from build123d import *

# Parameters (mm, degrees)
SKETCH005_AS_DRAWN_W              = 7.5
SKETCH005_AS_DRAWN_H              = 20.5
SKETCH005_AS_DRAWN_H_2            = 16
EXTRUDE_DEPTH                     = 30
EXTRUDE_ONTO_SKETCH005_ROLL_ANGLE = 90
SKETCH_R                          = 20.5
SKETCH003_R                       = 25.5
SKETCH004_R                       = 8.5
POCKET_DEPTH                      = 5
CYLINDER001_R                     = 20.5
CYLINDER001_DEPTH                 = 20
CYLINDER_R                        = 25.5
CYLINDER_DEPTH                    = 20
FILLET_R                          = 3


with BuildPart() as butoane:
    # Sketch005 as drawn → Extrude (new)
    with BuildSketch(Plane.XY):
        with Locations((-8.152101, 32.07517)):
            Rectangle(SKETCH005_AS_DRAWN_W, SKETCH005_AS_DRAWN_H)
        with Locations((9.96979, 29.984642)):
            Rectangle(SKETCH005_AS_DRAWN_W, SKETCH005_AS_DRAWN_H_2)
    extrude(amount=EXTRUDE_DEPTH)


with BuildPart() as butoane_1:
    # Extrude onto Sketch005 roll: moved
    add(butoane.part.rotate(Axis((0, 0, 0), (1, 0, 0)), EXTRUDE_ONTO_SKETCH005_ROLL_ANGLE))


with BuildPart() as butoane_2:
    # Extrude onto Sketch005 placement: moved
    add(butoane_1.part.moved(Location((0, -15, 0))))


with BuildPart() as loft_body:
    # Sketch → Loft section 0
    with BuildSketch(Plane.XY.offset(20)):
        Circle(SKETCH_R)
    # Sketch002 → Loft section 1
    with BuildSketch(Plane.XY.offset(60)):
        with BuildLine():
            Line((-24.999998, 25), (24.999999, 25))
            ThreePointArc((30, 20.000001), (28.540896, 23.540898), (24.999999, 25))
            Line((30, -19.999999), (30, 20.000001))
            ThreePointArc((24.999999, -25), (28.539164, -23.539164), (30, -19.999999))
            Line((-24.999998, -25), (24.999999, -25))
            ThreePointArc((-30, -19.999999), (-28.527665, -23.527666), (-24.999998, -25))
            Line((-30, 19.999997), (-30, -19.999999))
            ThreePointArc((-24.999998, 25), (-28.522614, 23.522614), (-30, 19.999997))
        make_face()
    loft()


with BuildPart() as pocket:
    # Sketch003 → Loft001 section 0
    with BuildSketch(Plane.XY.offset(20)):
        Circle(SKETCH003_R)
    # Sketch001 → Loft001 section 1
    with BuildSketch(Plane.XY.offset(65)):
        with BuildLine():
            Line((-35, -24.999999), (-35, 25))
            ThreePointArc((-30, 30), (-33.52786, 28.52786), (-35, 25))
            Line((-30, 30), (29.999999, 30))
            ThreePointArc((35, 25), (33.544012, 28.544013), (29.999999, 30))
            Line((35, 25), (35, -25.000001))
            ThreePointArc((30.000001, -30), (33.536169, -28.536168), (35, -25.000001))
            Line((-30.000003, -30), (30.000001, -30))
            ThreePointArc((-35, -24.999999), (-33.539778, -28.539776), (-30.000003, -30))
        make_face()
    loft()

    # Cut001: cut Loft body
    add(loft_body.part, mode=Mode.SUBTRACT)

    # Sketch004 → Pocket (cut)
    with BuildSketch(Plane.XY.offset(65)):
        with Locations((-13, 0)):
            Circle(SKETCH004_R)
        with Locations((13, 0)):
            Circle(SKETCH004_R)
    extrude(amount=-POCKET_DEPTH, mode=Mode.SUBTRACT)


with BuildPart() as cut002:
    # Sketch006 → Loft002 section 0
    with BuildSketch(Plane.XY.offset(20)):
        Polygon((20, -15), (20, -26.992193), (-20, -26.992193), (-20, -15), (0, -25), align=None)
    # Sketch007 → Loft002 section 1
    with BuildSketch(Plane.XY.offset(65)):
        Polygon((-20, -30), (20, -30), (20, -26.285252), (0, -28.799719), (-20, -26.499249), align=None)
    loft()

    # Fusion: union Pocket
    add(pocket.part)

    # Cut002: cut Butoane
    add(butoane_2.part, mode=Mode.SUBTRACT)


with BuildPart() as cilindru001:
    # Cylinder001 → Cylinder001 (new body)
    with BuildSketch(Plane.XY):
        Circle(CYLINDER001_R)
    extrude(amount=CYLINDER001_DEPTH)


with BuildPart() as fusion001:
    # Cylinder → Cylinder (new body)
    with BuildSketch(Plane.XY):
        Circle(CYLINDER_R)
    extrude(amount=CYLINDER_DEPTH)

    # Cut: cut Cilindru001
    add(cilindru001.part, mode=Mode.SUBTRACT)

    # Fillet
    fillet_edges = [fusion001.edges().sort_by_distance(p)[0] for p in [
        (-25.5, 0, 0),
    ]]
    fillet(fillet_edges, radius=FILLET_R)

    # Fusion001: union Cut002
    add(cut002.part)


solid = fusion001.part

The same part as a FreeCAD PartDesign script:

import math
import FreeCAD as App
import Part
import Sketcher


def edges_at(feature, points):
    """Names of the edges that pass closest to the given points."""
    edges = feature.Shape.Edges
    near = lambda p: min(range(len(edges)), key=lambda i: edges[i].distToShape(Part.Vertex(*p))[0])
    return sorted({f"Edge{near(p) + 1}" for p in points})

doc = App.newDocument("Part")
params = doc.addObject("Spreadsheet::Sheet", "Params")
for row, (alias, value) in enumerate([
    ("sketch1_height", "16 mm"),
    ("sketch1_width", "7.5 mm"),
    ("sketch1_height2", "20.5 mm"),
    ("pad1_length", "30 mm"),
    ("sketch2_diameter", "41 mm"),
    ("sketch3_height", "40 mm"),
    ("sketch4_diameter", "51 mm"),
    ("sketch5_width", "59.999999 mm"),
    ("sketch5_height", "49.999999 mm"),
    ("sketch6_diameter", "17 mm"),
    ("pocket1_length", "5 mm"),
    ("sketch7_width", "40 mm"),
    ("sketch8_width", "40 mm"),
    ("sketch9_diameter", "41 mm"),
    ("pad2_length", "20 mm"),
    ("sketch10_diameter", "51 mm"),
    ("pad3_length", "20 mm"),
    ("fillet_radius", "3 mm"),
], start=1):
    params.set(f"A{row}", alias)
    params.set(f"B{row}", "=" + value)
    params.setAlias(f"B{row}", alias)

body = doc.addObject("PartDesign::Body", "Body")
body.AllowCompound = True

sketch1 = body.newObject("Sketcher::SketchObject", "Sketch")
sketch1.AttachmentSupport = (doc.getObject("XY_Plane"), [""])
sketch1.MapMode = "FlatFace"
sketch1.addGeometry(Part.LineSegment(App.Vector(-12, 42, 0), App.Vector(-12, 22, 0)), False)
sketch1.addGeometry(Part.LineSegment(App.Vector(-12, 22, 0), App.Vector(-4, 22, 0)), False)
sketch1.addGeometry(Part.LineSegment(App.Vector(-4, 22, 0), App.Vector(-4, 42, 0)), False)
sketch1.addGeometry(Part.LineSegment(App.Vector(-4, 42, 0), App.Vector(-12, 42, 0)), False)
sketch1.addGeometry(Part.LineSegment(App.Vector(6, 38, 0), App.Vector(6, 22, 0)), False)
sketch1.addGeometry(Part.LineSegment(App.Vector(6, 22, 0), App.Vector(14, 22, 0)), False)
sketch1.addGeometry(Part.LineSegment(App.Vector(14, 22, 0), App.Vector(14, 38, 0)), False)
sketch1.addGeometry(Part.LineSegment(App.Vector(14, 38, 0), App.Vector(6, 38, 0)), False)
sketch1.addConstraint(Sketcher.Constraint("Coincident", 0, 2, 1, 1))
sketch1.addConstraint(Sketcher.Constraint("Coincident", 1, 2, 2, 1))
sketch1.addConstraint(Sketcher.Constraint("Coincident", 2, 2, 3, 1))
sketch1.addConstraint(Sketcher.Constraint("Coincident", 3, 2, 0, 1))
sketch1.addConstraint(Sketcher.Constraint("Coincident", 4, 2, 5, 1))
sketch1.addConstraint(Sketcher.Constraint("Coincident", 5, 2, 6, 1))
sketch1.addConstraint(Sketcher.Constraint("Coincident", 6, 2, 7, 1))
sketch1.addConstraint(Sketcher.Constraint("Coincident", 7, 2, 4, 1))
sketch1.addConstraint(Sketcher.Constraint("Vertical", 0))
sketch1.addConstraint(Sketcher.Constraint("Horizontal", 1))
sketch1.addConstraint(Sketcher.Constraint("Vertical", 2))
sketch1.addConstraint(Sketcher.Constraint("Horizontal", 3))
sketch1.addConstraint(Sketcher.Constraint("Vertical", 4))
sketch1.addConstraint(Sketcher.Constraint("Horizontal", 5))
sketch1.addConstraint(Sketcher.Constraint("Vertical", 6))
sketch1.addConstraint(Sketcher.Constraint("Horizontal", 7))
sketch1.addConstraint(Sketcher.Constraint("Equal", 3, 5))
sketch1.addConstraint(Sketcher.Constraint("DistanceY", 4, 2, 4, 1, 16.0))
sketch1.addConstraint(Sketcher.Constraint("DistanceX", 1, 1, 1, 2, 7.5))
sketch1.addConstraint(Sketcher.Constraint("DistanceY", 0, 2, 0, 1, 20.5))
sketch1.addConstraint(Sketcher.Constraint("DistanceX", 0, 2, -1, 1, 11.902101))
sketch1.addConstraint(Sketcher.Constraint("DistanceY", -1, 1, 0, 2, 21.82517))
sketch1.addConstraint(Sketcher.Constraint("DistanceX", -1, 1, 4, 2, 6.21979))
sketch1.addConstraint(Sketcher.Constraint("DistanceY", -1, 1, 4, 2, 21.984642))
sketch1.setExpression("Constraints[17]", "Params.sketch1_height")
sketch1.setExpression("Constraints[18]", "Params.sketch1_width")
sketch1.setExpression("Constraints[19]", "Params.sketch1_height2")
pad1 = body.newObject("PartDesign::Pad", "Pad")
pad1.Profile = sketch1
pad1.setExpression("Length", "Params.pad1_length")
body2 = doc.addObject("PartDesign::Body", "Body001")
body2.AllowCompound = True
doc.recompute()

body.Placement = App.Placement(App.Vector(0, 0, 0), App.Rotation(App.Vector(1, 0, 0), 90))
boolean = body2.newObject("PartDesign::Boolean", "Boolean")
boolean.Type = "Fuse"
boolean.addObjects([body])
body3 = doc.addObject("PartDesign::Body", "Body002")
body3.AllowCompound = True
doc.recompute()

body2.Placement = App.Placement(App.Vector(0, -15, 0), App.Rotation(App.Vector(0, 0, 1), 0))
boolean2 = body3.newObject("PartDesign::Boolean", "Boolean001")
boolean2.Type = "Fuse"
boolean2.addObjects([body2])
body4 = doc.addObject("PartDesign::Body", "Body003")

sketch2 = body4.newObject("Sketcher::SketchObject", "Sketch001")
sketch2.AttachmentSupport = (doc.getObject("XY_Plane003"), [""])
sketch2.MapMode = "FlatFace"
sketch2.AttachmentOffset = App.Placement(App.Vector(0, 0, 20), App.Rotation())
sketch2.addGeometry(Part.Circle(App.Vector(0, 0, 0), App.Vector(0, 0, 1), 20), False)
sketch2.addConstraint(Sketcher.Constraint("Coincident", 0, 3, -1, 1))
sketch2.addConstraint(Sketcher.Constraint("Diameter", 0, 41.0))
sketch2.setExpression("Constraints[1]", "Params.sketch2_diameter")

sketch3 = body4.newObject("Sketcher::SketchObject", "Sketch002")
sketch3.AttachmentSupport = (doc.getObject("XY_Plane003"), [""])
sketch3.MapMode = "FlatFace"
sketch3.AttachmentOffset = App.Placement(App.Vector(0, 0, 60), App.Rotation())
sketch3.addGeometry(Part.LineSegment(App.Vector(25, 25, 0), App.Vector(-25, 25, 0)), False)
sketch3.addGeometry(Part.ArcOfCircle(Part.Circle(App.Vector(-25, 20, 0), App.Vector(0, 0, 1), 5), math.radians(91), math.radians(179)), False)
sketch3.addGeometry(Part.LineSegment(App.Vector(-30, 20, 0), App.Vector(-30, -20, 0)), False)
sketch3.addGeometry(Part.ArcOfCircle(Part.Circle(App.Vector(-25, -20, 0), App.Vector(0, 0, 1), 5), math.radians(-180), math.radians(-90)), False)
sketch3.addGeometry(Part.LineSegment(App.Vector(-25, -25, 0), App.Vector(25, -25, 0)), False)
sketch3.addGeometry(Part.ArcOfCircle(Part.Circle(App.Vector(25, -20, 0), App.Vector(0, 0, 1), 5), math.radians(-90), math.radians(0)), False)
sketch3.addGeometry(Part.LineSegment(App.Vector(30, -20, 0), App.Vector(30, 20, 0)), False)
sketch3.addGeometry(Part.ArcOfCircle(Part.Circle(App.Vector(25, 20, 0), App.Vector(0, 0, 1), 5), math.radians(0), math.radians(90)), False)
sketch3.addConstraint(Sketcher.Constraint("Coincident", 0, 2, 1, 1))
sketch3.addConstraint(Sketcher.Constraint("Coincident", 1, 2, 2, 1))
sketch3.addConstraint(Sketcher.Constraint("Coincident", 2, 2, 3, 1))
sketch3.addConstraint(Sketcher.Constraint("Coincident", 3, 2, 4, 1))
sketch3.addConstraint(Sketcher.Constraint("Coincident", 4, 2, 5, 1))
sketch3.addConstraint(Sketcher.Constraint("Coincident", 5, 2, 6, 1))
sketch3.addConstraint(Sketcher.Constraint("Coincident", 6, 2, 7, 1))
sketch3.addConstraint(Sketcher.Constraint("Coincident", 7, 2, 0, 1))
sketch3.addConstraint(Sketcher.Constraint("Horizontal", 0))
sketch3.addConstraint(Sketcher.Constraint("Vertical", 2))
sketch3.addConstraint(Sketcher.Constraint("Horizontal", 4))
sketch3.addConstraint(Sketcher.Constraint("Vertical", 6))
sketch3.addConstraint(Sketcher.Constraint("Symmetric", 0, 2, 4, 2, -1, 1))
sketch3.addConstraint(Sketcher.Constraint("Symmetric", 1, 2, 5, 2, -1, 1))
sketch3.addConstraint(Sketcher.Constraint("Horizontal", 2, 2, 5, 2))
sketch3.addConstraint(Sketcher.Constraint("Vertical", 0, 2, 3, 2))
sketch3.addConstraint(Sketcher.Constraint("Vertical", 4, 2, 7, 2))
sketch3.addConstraint(Sketcher.Constraint("DistanceY", 6, 1, 6, 2, 40.0))
sketch3.addConstraint(Sketcher.Constraint("DistanceX", 0, 2, -1, 1, 24.999998))
sketch3.addConstraint(Sketcher.Constraint("DistanceY", -1, 1, 0, 2, 25.0))
sketch3.addConstraint(Sketcher.Constraint("DistanceX", 1, 2, -1, 1, 30.0))
sketch3.addConstraint(Sketcher.Constraint("DistanceY", 2, 2, -1, 1, 19.999999))
sketch3.addConstraint(Sketcher.Constraint("Radius", 5, 4.987658))
sketch3.addConstraint(Sketcher.Constraint("Radius", 1, 5.044784))
sketch3.addConstraint(Sketcher.Constraint("Radius", 3, 5.027113))
sketch3.addConstraint(Sketcher.Constraint("Radius", 7, 4.981803))
sketch3.setExpression("Constraints[17]", "Params.sketch3_height")

additiveloft = body4.newObject("PartDesign::AdditiveLoft", "AdditiveLoft")
additiveloft.Profile = sketch2
additiveloft.Sections = [sketch3]
body5 = doc.addObject("PartDesign::Body", "Body004")

sketch4 = body5.newObject("Sketcher::SketchObject", "Sketch003")
sketch4.AttachmentSupport = (doc.getObject("XY_Plane004"), [""])
sketch4.MapMode = "FlatFace"
sketch4.AttachmentOffset = App.Placement(App.Vector(0, 0, 20), App.Rotation())
sketch4.addGeometry(Part.Circle(App.Vector(0, 0, 0), App.Vector(0, 0, 1), 26), False)
sketch4.addConstraint(Sketcher.Constraint("Coincident", 0, 3, -1, 1))
sketch4.addConstraint(Sketcher.Constraint("Diameter", 0, 51.0))
sketch4.setExpression("Constraints[1]", "Params.sketch4_diameter")

sketch5 = body5.newObject("Sketcher::SketchObject", "Sketch004")
sketch5.AttachmentSupport = (doc.getObject("XY_Plane004"), [""])
sketch5.MapMode = "FlatFace"
sketch5.AttachmentOffset = App.Placement(App.Vector(0, 0, 65), App.Rotation())
sketch5.addGeometry(Part.LineSegment(App.Vector(-35, 25, 0), App.Vector(-35, -25, 0)), False)
sketch5.addGeometry(Part.ArcOfCircle(Part.Circle(App.Vector(-30, -25, 0), App.Vector(0, 0, 1), 5), math.radians(180), math.radians(270)), False)
sketch5.addGeometry(Part.LineSegment(App.Vector(-30, -30, 0), App.Vector(30, -30, 0)), False)
sketch5.addGeometry(Part.ArcOfCircle(Part.Circle(App.Vector(30, -25, 0), App.Vector(0, 0, 1), 5), math.radians(-90), math.radians(0)), False)
sketch5.addGeometry(Part.LineSegment(App.Vector(35, -25, 0), App.Vector(35, 25, 0)), False)
sketch5.addGeometry(Part.ArcOfCircle(Part.Circle(App.Vector(30, 25, 0), App.Vector(0, 0, 1), 5), math.radians(0), math.radians(90)), False)
sketch5.addGeometry(Part.LineSegment(App.Vector(30, 30, 0), App.Vector(-30, 30, 0)), False)
sketch5.addGeometry(Part.ArcOfCircle(Part.Circle(App.Vector(-30, 25, 0), App.Vector(0, 0, 1), 5), math.radians(90), math.radians(180)), False)
sketch5.addConstraint(Sketcher.Constraint("Coincident", 0, 2, 1, 1))
sketch5.addConstraint(Sketcher.Constraint("Coincident", 1, 2, 2, 1))
sketch5.addConstraint(Sketcher.Constraint("Coincident", 2, 2, 3, 1))
sketch5.addConstraint(Sketcher.Constraint("Coincident", 3, 2, 4, 1))
sketch5.addConstraint(Sketcher.Constraint("Coincident", 4, 2, 5, 1))
sketch5.addConstraint(Sketcher.Constraint("Coincident", 5, 2, 6, 1))
sketch5.addConstraint(Sketcher.Constraint("Coincident", 6, 2, 7, 1))
sketch5.addConstraint(Sketcher.Constraint("Coincident", 7, 2, 0, 1))
sketch5.addConstraint(Sketcher.Constraint("Vertical", 0))
sketch5.addConstraint(Sketcher.Constraint("Horizontal", 2))
sketch5.addConstraint(Sketcher.Constraint("Vertical", 4))
sketch5.addConstraint(Sketcher.Constraint("Horizontal", 6))
sketch5.addConstraint(Sketcher.Constraint("Symmetric", 0, 2, 4, 2, -1, 1))
sketch5.addConstraint(Sketcher.Constraint("Symmetric", 1, 2, 5, 2, -1, 1))
sketch5.addConstraint(Sketcher.Constraint("Horizontal", 0, 2, 3, 2))
sketch5.addConstraint(Sketcher.Constraint("Horizontal", 4, 2, 7, 2))
sketch5.addConstraint(Sketcher.Constraint("DistanceX", 6, 2, 6, 1, 59.999999))
sketch5.addConstraint(Sketcher.Constraint("DistanceY", 0, 2, 0, 1, 49.999999))
sketch5.addConstraint(Sketcher.Constraint("DistanceX", 0, 2, -1, 1, 35.0))
sketch5.addConstraint(Sketcher.Constraint("DistanceY", 1, 2, -1, 1, 30.0))
sketch5.addConstraint(Sketcher.Constraint("DistanceX", -1, 1, 2, 2, 30.000001))
sketch5.addConstraint(Sketcher.Constraint("DistanceX", -1, 1, 5, 2, 29.999999))
sketch5.addConstraint(Sketcher.Constraint("Radius", 1, 4.985585))
sketch5.addConstraint(Sketcher.Constraint("Radius", 3, 4.997835))
sketch5.addConstraint(Sketcher.Constraint("Radius", 5, 4.971336))
sketch5.addConstraint(Sketcher.Constraint("Radius", 7, 5.026436))
sketch5.setExpression("Constraints[16]", "Params.sketch5_width")
sketch5.setExpression("Constraints[17]", "Params.sketch5_height")

additiveloft2 = body5.newObject("PartDesign::AdditiveLoft", "AdditiveLoft001")
additiveloft2.Profile = sketch4
additiveloft2.Sections = [sketch5]
doc.recompute()

boolean3 = body5.newObject("PartDesign::Boolean", "Boolean002")
boolean3.Type = "Cut"
boolean3.addObjects([body4])

sketch6 = body5.newObject("Sketcher::SketchObject", "Sketch005")
sketch6.AttachmentSupport = (doc.getObject("XY_Plane004"), [""])
sketch6.MapMode = "FlatFace"
sketch6.AttachmentOffset = App.Placement(App.Vector(0, 0, 65), App.Rotation())
sketch6.addGeometry(Part.Circle(App.Vector(-13, 0, 0), App.Vector(0, 0, 1), 8), False)
sketch6.addGeometry(Part.Circle(App.Vector(13, 0, 0), App.Vector(0, 0, 1), 8), False)
sketch6.addConstraint(Sketcher.Constraint("Equal", 0, 1))
sketch6.addConstraint(Sketcher.Constraint("Symmetric", 0, 3, 1, 3, -1, 1))
sketch6.addConstraint(Sketcher.Constraint("PointOnObject", 0, 3, -1))
sketch6.addConstraint(Sketcher.Constraint("Diameter", 0, 17.0))
sketch6.addConstraint(Sketcher.Constraint("DistanceX", 0, 3, -1, 1, 13.0))
sketch6.setExpression("Constraints[3]", "Params.sketch6_diameter")
pocket1 = body5.newObject("PartDesign::Pocket", "Pocket")
pocket1.Profile = sketch6
pocket1.setExpression("Length", "Params.pocket1_length")
body6 = doc.addObject("PartDesign::Body", "Body005")

sketch7 = body6.newObject("Sketcher::SketchObject", "Sketch006")
sketch7.AttachmentSupport = (doc.getObject("XY_Plane005"), [""])
sketch7.MapMode = "FlatFace"
sketch7.AttachmentOffset = App.Placement(App.Vector(0, 0, 20), App.Rotation())
sketch7.addGeometry(Part.LineSegment(App.Vector(20, -27, 0), App.Vector(20, -15, 0)), False)
sketch7.addGeometry(Part.LineSegment(App.Vector(20, -15, 0), App.Vector(0, -25, 0)), False)
sketch7.addGeometry(Part.LineSegment(App.Vector(0, -25, 0), App.Vector(-20, -15, 0)), False)
sketch7.addGeometry(Part.LineSegment(App.Vector(-20, -15, 0), App.Vector(-20, -27, 0)), False)
sketch7.addGeometry(Part.LineSegment(App.Vector(-20, -27, 0), App.Vector(20, -27, 0)), False)
sketch7.addConstraint(Sketcher.Constraint("Coincident", 0, 2, 1, 1))
sketch7.addConstraint(Sketcher.Constraint("Coincident", 1, 2, 2, 1))
sketch7.addConstraint(Sketcher.Constraint("Coincident", 2, 2, 3, 1))
sketch7.addConstraint(Sketcher.Constraint("Coincident", 3, 2, 4, 1))
sketch7.addConstraint(Sketcher.Constraint("Coincident", 4, 2, 0, 1))
sketch7.addConstraint(Sketcher.Constraint("Vertical", 0))
sketch7.addConstraint(Sketcher.Constraint("Vertical", 3))
sketch7.addConstraint(Sketcher.Constraint("Horizontal", 4))
sketch7.addConstraint(Sketcher.Constraint("Symmetric", 0, 2, 2, 2, -2))
sketch7.addConstraint(Sketcher.Constraint("PointOnObject", 1, 2, -2))
sketch7.addConstraint(Sketcher.Constraint("DistanceX", 4, 1, 4, 2, 40.0))
sketch7.addConstraint(Sketcher.Constraint("DistanceY", 0, 2, -1, 1, 15.0))
sketch7.addConstraint(Sketcher.Constraint("DistanceY", 1, 2, -1, 1, 25.0))
sketch7.addConstraint(Sketcher.Constraint("DistanceY", 0, 1, 0, 2, 11.992193))
sketch7.setExpression("Constraints[10]", "Params.sketch7_width")

sketch8 = body6.newObject("Sketcher::SketchObject", "Sketch007")
sketch8.AttachmentSupport = (doc.getObject("XY_Plane005"), [""])
sketch8.MapMode = "FlatFace"
sketch8.AttachmentOffset = App.Placement(App.Vector(0, 0, 65), App.Rotation())
sketch8.addGeometry(Part.LineSegment(App.Vector(-20, -30, 0), App.Vector(20, -30, 0)), False)
sketch8.addGeometry(Part.LineSegment(App.Vector(20, -30, 0), App.Vector(20, -26.3, 0)), False)
sketch8.addGeometry(Part.LineSegment(App.Vector(20, -26.3, 0), App.Vector(0, -28.8, 0)), False)
sketch8.addGeometry(Part.LineSegment(App.Vector(0, -28.8, 0), App.Vector(-20, -26.5, 0)), False)
sketch8.addGeometry(Part.LineSegment(App.Vector(-20, -26.5, 0), App.Vector(-20, -30, 0)), False)
sketch8.addConstraint(Sketcher.Constraint("Coincident", 0, 2, 1, 1))
sketch8.addConstraint(Sketcher.Constraint("Coincident", 1, 2, 2, 1))
sketch8.addConstraint(Sketcher.Constraint("Coincident", 2, 2, 3, 1))
sketch8.addConstraint(Sketcher.Constraint("Coincident", 3, 2, 4, 1))
sketch8.addConstraint(Sketcher.Constraint("Coincident", 4, 2, 0, 1))
sketch8.addConstraint(Sketcher.Constraint("Horizontal", 0))
sketch8.addConstraint(Sketcher.Constraint("Vertical", 1))
sketch8.addConstraint(Sketcher.Constraint("Vertical", 4))
sketch8.addConstraint(Sketcher.Constraint("PointOnObject", 2, 2, -2))
sketch8.addConstraint(Sketcher.Constraint("DistanceX", 0, 1, 0, 2, 40.0))
sketch8.addConstraint(Sketcher.Constraint("DistanceX", -1, 1, 0, 2, 20.0))
sketch8.addConstraint(Sketcher.Constraint("DistanceY", 0, 2, -1, 1, 30.0))
sketch8.addConstraint(Sketcher.Constraint("DistanceY", 1, 1, 1, 2, 3.714748))
sketch8.addConstraint(Sketcher.Constraint("DistanceY", 4, 2, 4, 1, 3.500751))
sketch8.addConstraint(Sketcher.Constraint("Distance", 3, 20.131869))
sketch8.setExpression("Constraints[9]", "Params.sketch8_width")

additiveloft3 = body6.newObject("PartDesign::AdditiveLoft", "AdditiveLoft002")
additiveloft3.Profile = sketch7
additiveloft3.Sections = [sketch8]
doc.recompute()

boolean4 = body6.newObject("PartDesign::Boolean", "Boolean003")
boolean4.Type = "Fuse"
boolean4.addObjects([body5])
doc.recompute()

boolean5 = body6.newObject("PartDesign::Boolean", "Boolean004")
boolean5.Type = "Cut"
boolean5.addObjects([body3])
body7 = doc.addObject("PartDesign::Body", "Body006")

sketch9 = body7.newObject("Sketcher::SketchObject", "Sketch008")
sketch9.AttachmentSupport = (doc.getObject("XY_Plane006"), [""])
sketch9.MapMode = "FlatFace"
sketch9.addGeometry(Part.Circle(App.Vector(0, 0, 0), App.Vector(0, 0, 1), 20), False)
sketch9.addConstraint(Sketcher.Constraint("Coincident", 0, 3, -1, 1))
sketch9.addConstraint(Sketcher.Constraint("Diameter", 0, 41.0))
sketch9.setExpression("Constraints[1]", "Params.sketch9_diameter")
pad2 = body7.newObject("PartDesign::Pad", "Pad001")
pad2.Profile = sketch9
pad2.setExpression("Length", "Params.pad2_length")
body8 = doc.addObject("PartDesign::Body", "Body007")

sketch10 = body8.newObject("Sketcher::SketchObject", "Sketch009")
sketch10.AttachmentSupport = (doc.getObject("XY_Plane007"), [""])
sketch10.MapMode = "FlatFace"
sketch10.addGeometry(Part.Circle(App.Vector(0, 0, 0), App.Vector(0, 0, 1), 26), False)
sketch10.addConstraint(Sketcher.Constraint("Coincident", 0, 3, -1, 1))
sketch10.addConstraint(Sketcher.Constraint("Diameter", 0, 51.0))
sketch10.setExpression("Constraints[1]", "Params.sketch10_diameter")
pad3 = body8.newObject("PartDesign::Pad", "Pad002")
pad3.Profile = sketch10
pad3.setExpression("Length", "Params.pad3_length")
doc.recompute()

boolean6 = body8.newObject("PartDesign::Boolean", "Boolean005")
boolean6.Type = "Cut"
boolean6.addObjects([body7])
doc.recompute()

fillet = body8.newObject("PartDesign::Fillet", "Fillet")
fillet.Base = (boolean6, edges_at(boolean6, [(-25.5, 0, 0)]))
fillet.setExpression("Radius", "Params.fillet_radius")
doc.recompute()

boolean7 = body8.newObject("PartDesign::Boolean", "Boolean006")
boolean7.Type = "Fuse"
boolean7.addObjects([body6])

doc.recompute()
